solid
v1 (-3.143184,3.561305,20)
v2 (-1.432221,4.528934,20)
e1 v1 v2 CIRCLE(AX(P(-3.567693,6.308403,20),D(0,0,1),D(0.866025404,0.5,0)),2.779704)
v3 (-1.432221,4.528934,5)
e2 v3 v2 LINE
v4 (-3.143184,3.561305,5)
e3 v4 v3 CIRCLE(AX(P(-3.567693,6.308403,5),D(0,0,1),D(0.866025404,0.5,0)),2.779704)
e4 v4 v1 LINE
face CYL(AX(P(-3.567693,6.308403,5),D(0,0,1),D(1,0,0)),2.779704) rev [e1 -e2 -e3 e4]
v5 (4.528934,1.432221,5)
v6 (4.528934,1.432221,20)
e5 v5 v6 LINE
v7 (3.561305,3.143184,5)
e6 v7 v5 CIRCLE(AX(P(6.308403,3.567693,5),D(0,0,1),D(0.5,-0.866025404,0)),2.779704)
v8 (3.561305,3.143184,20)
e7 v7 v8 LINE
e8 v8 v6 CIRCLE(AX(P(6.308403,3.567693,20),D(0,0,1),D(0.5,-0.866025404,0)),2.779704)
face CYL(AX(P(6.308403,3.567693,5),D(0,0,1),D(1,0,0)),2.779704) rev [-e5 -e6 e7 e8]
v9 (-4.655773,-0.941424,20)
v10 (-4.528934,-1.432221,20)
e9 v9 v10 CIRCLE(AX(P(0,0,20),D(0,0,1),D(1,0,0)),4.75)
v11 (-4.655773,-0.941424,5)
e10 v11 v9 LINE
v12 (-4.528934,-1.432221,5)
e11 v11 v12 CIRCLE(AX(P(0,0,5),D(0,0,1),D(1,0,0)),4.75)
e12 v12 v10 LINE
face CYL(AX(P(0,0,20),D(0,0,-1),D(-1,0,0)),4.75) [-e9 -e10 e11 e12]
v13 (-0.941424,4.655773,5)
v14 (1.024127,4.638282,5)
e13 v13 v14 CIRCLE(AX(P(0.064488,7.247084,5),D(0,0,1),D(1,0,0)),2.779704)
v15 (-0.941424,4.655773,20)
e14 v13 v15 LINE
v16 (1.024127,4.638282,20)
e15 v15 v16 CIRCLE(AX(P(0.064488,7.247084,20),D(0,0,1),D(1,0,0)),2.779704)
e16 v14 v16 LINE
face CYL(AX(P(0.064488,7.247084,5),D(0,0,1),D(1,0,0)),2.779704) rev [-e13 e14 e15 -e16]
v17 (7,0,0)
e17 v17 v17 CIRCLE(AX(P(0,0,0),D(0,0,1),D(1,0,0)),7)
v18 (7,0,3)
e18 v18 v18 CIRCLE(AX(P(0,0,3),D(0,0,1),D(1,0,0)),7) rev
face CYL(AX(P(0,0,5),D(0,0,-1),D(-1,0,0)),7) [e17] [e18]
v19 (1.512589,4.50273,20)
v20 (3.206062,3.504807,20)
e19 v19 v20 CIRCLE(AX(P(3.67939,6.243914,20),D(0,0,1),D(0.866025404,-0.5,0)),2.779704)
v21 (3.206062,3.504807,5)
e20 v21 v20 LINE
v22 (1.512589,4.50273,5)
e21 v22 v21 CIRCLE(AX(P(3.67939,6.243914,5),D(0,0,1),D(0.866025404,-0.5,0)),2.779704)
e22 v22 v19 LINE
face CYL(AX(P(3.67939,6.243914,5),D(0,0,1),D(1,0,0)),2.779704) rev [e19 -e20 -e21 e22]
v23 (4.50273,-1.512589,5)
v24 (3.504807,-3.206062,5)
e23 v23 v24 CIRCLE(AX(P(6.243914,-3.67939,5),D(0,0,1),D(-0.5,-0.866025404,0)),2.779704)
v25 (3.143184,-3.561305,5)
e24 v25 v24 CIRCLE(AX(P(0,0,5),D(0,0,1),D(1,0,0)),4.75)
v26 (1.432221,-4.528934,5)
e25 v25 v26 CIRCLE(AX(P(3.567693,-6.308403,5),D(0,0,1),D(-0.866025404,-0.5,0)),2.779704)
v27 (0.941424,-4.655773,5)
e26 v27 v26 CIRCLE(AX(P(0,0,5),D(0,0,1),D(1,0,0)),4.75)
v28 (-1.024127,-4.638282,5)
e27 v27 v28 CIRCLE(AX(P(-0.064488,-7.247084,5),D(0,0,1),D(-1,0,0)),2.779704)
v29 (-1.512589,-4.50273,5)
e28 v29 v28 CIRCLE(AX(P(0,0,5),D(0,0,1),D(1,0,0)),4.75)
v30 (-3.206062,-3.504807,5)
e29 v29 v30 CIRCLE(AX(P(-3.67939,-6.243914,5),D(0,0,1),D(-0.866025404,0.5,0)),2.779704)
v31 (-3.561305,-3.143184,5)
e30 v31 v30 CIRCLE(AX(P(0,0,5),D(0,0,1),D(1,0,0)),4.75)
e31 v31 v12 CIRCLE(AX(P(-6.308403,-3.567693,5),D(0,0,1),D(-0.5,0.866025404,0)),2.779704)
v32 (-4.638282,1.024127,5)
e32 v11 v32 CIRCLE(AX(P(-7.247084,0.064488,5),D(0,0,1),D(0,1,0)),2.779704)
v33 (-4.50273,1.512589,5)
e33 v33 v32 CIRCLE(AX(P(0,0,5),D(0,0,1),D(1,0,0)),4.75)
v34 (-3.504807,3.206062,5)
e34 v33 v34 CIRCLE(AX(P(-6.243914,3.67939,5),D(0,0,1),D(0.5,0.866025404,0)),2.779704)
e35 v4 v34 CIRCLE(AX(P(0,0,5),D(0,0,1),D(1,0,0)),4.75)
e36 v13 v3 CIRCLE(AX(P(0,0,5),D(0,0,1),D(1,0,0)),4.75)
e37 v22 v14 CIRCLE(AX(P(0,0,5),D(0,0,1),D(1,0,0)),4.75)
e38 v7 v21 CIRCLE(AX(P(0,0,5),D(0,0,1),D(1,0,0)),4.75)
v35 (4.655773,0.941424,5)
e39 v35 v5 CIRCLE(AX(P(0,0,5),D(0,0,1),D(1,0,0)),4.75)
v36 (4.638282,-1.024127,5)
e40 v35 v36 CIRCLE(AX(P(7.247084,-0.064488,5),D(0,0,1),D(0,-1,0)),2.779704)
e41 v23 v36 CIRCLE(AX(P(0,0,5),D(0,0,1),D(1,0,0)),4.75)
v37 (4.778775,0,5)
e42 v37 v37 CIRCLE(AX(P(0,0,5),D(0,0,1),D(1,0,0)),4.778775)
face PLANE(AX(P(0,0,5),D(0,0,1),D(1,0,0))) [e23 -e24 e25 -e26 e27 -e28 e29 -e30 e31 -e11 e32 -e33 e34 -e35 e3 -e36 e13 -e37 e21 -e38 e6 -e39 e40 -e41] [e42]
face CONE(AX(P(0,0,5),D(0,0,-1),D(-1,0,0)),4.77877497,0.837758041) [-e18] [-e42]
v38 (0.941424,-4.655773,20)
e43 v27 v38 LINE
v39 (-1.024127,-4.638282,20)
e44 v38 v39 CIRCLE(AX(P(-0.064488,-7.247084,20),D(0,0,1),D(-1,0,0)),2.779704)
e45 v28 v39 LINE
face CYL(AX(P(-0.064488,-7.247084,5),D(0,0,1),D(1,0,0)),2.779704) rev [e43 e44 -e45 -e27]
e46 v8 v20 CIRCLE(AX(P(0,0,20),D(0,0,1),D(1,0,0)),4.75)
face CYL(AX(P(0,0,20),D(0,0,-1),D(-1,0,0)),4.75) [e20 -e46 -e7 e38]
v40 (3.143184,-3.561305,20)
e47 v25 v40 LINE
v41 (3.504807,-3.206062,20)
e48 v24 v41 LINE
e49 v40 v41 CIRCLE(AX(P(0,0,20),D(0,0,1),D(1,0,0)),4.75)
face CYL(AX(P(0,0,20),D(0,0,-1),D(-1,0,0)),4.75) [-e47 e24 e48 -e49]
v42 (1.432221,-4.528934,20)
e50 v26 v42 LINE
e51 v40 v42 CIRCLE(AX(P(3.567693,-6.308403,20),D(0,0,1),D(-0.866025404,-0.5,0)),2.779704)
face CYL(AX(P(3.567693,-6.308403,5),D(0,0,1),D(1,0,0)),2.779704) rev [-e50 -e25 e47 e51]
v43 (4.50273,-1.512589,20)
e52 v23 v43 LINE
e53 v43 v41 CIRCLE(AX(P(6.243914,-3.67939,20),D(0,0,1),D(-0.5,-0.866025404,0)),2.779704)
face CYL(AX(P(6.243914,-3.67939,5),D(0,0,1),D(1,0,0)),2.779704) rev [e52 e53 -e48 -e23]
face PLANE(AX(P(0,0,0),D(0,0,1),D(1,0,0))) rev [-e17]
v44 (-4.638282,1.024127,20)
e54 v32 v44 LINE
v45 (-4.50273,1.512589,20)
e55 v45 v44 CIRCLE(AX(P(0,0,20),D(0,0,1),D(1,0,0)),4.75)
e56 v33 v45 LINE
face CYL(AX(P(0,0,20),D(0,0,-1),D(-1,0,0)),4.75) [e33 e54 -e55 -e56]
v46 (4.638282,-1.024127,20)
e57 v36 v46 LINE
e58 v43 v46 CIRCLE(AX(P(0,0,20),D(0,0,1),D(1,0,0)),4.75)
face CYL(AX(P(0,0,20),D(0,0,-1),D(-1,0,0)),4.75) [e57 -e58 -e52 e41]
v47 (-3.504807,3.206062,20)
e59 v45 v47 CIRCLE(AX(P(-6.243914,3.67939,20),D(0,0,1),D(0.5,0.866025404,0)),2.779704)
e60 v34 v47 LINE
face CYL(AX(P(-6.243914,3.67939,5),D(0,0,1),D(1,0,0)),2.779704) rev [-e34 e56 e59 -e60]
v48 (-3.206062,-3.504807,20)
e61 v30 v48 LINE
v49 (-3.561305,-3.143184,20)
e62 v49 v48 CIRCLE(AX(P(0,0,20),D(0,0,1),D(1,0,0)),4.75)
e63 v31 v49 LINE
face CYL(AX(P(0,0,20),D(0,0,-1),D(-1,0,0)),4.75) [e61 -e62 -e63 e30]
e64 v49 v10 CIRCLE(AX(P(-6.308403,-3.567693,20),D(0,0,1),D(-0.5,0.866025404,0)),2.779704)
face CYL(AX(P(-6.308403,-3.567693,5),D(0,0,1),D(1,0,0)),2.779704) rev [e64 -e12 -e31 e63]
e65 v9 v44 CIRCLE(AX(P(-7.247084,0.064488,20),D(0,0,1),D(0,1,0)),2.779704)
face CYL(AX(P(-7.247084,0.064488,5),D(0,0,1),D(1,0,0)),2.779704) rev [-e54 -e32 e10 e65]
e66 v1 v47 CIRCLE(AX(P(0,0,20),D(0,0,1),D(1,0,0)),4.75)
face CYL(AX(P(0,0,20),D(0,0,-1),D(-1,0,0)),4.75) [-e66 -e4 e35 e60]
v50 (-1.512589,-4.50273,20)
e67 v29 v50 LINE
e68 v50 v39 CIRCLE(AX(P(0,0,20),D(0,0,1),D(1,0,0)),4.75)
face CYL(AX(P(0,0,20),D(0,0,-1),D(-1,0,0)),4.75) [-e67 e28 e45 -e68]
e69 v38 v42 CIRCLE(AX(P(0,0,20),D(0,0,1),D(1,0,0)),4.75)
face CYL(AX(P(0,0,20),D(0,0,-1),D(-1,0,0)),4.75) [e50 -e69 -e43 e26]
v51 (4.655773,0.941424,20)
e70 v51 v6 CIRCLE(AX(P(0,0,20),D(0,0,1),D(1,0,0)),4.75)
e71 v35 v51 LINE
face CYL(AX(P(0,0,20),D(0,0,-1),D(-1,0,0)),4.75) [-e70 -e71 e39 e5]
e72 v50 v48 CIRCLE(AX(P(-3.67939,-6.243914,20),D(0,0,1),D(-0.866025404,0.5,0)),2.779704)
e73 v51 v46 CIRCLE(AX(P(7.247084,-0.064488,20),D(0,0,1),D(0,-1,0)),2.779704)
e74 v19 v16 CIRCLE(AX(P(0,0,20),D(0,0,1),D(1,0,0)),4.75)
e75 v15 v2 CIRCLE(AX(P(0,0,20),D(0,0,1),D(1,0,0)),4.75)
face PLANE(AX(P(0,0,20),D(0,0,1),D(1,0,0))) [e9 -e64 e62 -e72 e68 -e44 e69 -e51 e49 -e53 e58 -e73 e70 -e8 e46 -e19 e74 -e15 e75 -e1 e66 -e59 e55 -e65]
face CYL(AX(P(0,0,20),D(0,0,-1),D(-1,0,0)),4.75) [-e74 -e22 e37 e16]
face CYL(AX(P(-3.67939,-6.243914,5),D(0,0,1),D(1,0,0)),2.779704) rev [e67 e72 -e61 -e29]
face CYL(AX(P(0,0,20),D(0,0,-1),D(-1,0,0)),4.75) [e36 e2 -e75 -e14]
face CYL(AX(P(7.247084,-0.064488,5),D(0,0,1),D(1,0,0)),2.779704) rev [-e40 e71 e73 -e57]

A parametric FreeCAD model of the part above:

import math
import FreeCAD as App
import Part
import Sketcher
Q = App.Units.Quantity


def edges_at(feature, points):
    """Names of the edges that pass closest to the given points."""
    edges = feature.Shape.Edges
    near = lambda p: min(range(len(edges)), key=lambda i: edges[i].distToShape(Part.Vertex(*p))[0])
    return sorted({f"Edge{near(p) + 1}" for p in points})

doc = App.newDocument("Part")
body = doc.addObject("PartDesign::Body", "Body")

sketch1 = doc.addObject("Sketcher::SketchObject", "Sketch")
body.addObject(sketch1)
sketch1.AttachmentSupport = (doc.XY_Plane, [""])
sketch1.MapMode = "FlatFace"
sketch1.addGeometry(Part.Circle(App.Vector(0, 0, 0), App.Vector(0, 0, 1), 7), False)
sketch1.addConstraint([
    Sketcher.Constraint("Coincident", 0, 3, -1, 1),
    Sketcher.Constraint("Diameter", 0, Q("14 mm")),
])
pad1 = doc.addObject("PartDesign::Pad", "Pad")
body.addObject(pad1)
pad1.Profile = sketch1
pad1.Length = 5

sketch2 = doc.addObject("Sketcher::SketchObject", "Sketch001")
body.addObject(sketch2)
sketch2.AttachmentSupport = (doc.XY_Plane, [""])
sketch2.MapMode = "FlatFace"
sketch2.AttachmentOffset = App.Placement(App.Vector(0, 0, 5), App.Rotation())
sketch2.addGeometry(Part.Circle(App.Vector(0, 0, 0), App.Vector(0, 0, 1), 4.8), False)
sketch2.addConstraint([
    Sketcher.Constraint("Coincident", 0, 3, -1, 1),
    Sketcher.Constraint("Diameter", 0, Q("9.5 mm")),
])
pad2 = doc.addObject("PartDesign::Pad", "Pad001")
body.addObject(pad2)
pad2.Profile = sketch2
pad2.Length = 15
doc.recompute()

chamfer = doc.addObject("PartDesign::Chamfer", "Chamfer")
body.addObject(chamfer)
chamfer.Base = (pad2, edges_at(pad2, [(-7, 0, 5)]))
chamfer.ChamferType = "Two distances"
chamfer.Size = 2
chamfer.Size2 = 2.221225

sketch3 = doc.addObject("Sketcher::SketchObject", "Sketch002")
body.addObject(sketch3)
sketch3.AttachmentSupport = (doc.XY_Plane, [""])
sketch3.MapMode = "FlatFace"
sketch3.AttachmentOffset = App.Placement(App.Vector(0, 0, 5), App.Rotation())
sketch3.addGeometry([
    Part.ArcOfCircle(Part.Circle(App.Vector(0.1, 7.2, 0), App.Vector(0, 0, 1), 2.8), math.radians(-111), math.radians(-70)),
    Part.ArcOfCircle(Part.Circle(App.Vector(0, 0, 0), App.Vector(0, 0, 1), 4.7), math.radians(78), math.radians(101)),
], False)
sketch3.addConstraint([
    Sketcher.Constraint("Coincident", 0, 1, 1, 2),
    Sketcher.Constraint("Coincident", 1, 1, 0, 2),
    Sketcher.Constraint("Coincident", 1, 3, -1, 1),
    Sketcher.Constraint("Radius", 1, Q("4.75 mm")),
    Sketcher.Constraint("Radius", 0, Q("2.779704 mm")),
    Sketcher.Constraint("DistanceY", 1, 1, 0, 3, Q("2.608801 mm")),
    Sketcher.Constraint("DistanceX", -1, 1, 0, 3, Q("0.064488 mm")),
])
pocket1 = doc.addObject("PartDesign::Pocket", "Pocket")
body.addObject(pocket1)
pocket1.Profile = sketch3
pocket1.Length = 15
pocket1.Reversed = True
doc.recompute()

polarpattern = doc.addObject("PartDesign::PolarPattern", "PolarPattern")
body.addObject(polarpattern)
polarpattern.Originals = [pocket1]
polarpattern.Axis = (doc.Z_Axis, [""])
polarpattern.Angle = 360
polarpattern.Occurrences = 12
body.Tip = polarpattern

doc.recompute()
